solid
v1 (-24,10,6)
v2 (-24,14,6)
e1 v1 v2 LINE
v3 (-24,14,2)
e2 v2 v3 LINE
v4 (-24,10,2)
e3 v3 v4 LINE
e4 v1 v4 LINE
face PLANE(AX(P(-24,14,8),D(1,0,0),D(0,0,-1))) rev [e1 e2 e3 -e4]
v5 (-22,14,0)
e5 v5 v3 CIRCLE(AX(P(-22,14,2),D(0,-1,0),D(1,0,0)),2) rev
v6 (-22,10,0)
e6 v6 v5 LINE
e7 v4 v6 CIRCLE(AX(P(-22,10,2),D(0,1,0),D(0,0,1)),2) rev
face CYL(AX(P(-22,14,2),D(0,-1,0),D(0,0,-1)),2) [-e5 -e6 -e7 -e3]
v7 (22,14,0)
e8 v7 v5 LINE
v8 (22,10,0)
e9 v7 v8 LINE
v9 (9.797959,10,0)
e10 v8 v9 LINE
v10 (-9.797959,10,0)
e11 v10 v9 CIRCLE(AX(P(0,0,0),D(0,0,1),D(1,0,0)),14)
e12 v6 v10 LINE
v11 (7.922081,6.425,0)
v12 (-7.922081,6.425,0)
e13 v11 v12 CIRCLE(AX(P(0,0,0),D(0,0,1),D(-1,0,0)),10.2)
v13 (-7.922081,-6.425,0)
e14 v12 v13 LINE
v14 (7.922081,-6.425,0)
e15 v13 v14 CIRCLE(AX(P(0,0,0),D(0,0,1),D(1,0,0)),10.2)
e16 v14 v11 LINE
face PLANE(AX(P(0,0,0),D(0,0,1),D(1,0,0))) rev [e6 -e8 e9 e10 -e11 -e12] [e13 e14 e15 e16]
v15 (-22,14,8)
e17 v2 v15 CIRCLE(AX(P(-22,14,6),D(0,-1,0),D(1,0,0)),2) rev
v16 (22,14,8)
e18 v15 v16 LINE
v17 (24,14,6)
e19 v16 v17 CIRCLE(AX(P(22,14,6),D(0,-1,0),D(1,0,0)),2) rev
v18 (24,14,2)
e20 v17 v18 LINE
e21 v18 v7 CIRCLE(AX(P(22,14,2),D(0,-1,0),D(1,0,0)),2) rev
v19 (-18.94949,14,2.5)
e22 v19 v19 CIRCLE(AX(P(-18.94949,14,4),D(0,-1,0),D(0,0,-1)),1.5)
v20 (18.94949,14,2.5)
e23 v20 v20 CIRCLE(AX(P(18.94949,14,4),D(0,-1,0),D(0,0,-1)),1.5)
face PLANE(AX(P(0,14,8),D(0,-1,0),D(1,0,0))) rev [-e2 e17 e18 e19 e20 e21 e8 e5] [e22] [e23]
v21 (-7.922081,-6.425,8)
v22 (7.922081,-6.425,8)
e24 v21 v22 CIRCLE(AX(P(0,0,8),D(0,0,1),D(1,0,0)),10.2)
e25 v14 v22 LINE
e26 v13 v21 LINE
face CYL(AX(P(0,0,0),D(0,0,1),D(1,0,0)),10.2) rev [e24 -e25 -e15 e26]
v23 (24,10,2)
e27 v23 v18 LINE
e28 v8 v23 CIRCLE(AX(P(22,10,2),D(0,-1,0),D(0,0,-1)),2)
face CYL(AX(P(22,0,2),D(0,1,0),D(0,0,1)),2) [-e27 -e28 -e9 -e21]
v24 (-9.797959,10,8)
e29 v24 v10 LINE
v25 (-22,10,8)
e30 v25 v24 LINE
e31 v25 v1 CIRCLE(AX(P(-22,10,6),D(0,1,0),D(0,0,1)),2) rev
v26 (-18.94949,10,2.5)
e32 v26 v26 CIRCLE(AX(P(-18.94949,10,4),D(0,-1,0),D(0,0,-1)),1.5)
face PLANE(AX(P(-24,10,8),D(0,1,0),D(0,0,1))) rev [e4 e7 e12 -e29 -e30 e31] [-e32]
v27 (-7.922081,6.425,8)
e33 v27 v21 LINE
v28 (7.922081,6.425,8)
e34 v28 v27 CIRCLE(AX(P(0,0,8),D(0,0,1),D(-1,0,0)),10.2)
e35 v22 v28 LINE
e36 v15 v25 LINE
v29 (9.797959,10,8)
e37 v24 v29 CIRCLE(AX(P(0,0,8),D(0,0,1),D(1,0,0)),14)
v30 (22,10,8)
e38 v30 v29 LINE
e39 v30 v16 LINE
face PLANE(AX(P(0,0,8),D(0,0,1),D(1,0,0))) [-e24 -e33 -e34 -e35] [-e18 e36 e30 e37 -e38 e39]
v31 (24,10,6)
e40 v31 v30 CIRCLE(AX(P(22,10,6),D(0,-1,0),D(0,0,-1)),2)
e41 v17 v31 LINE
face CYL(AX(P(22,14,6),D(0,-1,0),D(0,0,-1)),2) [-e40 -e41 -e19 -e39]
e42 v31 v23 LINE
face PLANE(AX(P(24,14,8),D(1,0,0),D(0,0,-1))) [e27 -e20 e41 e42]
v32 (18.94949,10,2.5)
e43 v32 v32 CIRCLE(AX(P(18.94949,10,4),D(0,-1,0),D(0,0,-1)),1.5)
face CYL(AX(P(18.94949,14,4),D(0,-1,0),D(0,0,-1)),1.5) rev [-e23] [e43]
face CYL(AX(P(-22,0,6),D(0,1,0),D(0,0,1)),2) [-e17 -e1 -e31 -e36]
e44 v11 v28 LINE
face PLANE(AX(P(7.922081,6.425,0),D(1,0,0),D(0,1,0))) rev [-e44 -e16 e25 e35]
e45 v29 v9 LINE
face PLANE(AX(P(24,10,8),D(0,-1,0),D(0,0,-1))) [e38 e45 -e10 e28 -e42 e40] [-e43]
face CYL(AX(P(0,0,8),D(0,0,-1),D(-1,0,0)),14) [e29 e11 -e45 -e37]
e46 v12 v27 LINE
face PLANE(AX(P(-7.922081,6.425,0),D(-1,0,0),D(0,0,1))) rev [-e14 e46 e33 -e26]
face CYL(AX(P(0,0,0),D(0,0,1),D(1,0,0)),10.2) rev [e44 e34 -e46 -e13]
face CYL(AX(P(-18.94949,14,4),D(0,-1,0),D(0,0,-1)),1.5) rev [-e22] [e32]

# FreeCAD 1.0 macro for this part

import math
import FreeCAD as App
import Part
import Sketcher

V = App.Vector


def edges_at(feature, points):
    """Names of the edges that pass closest to the given points."""
    edges = feature.Shape.Edges
    near = lambda p: min(range(len(edges)), key=lambda i: edges[i].distToShape(Part.Vertex(*p))[0])
    return sorted({f"Edge{near(p) + 1}" for p in points})

doc = App.newDocument("Part")
body = doc.addObject("PartDesign::Body", "Body")

sketch1 = body.newObject("Sketcher::SketchObject", "Sketch")
sketch1.AttachmentSupport = (doc.getObject("XY_Plane"), [""])
sketch1.MapMode = "FlatFace"
sketch1.addGeometry([
    Part.LineSegment(V(-24, 14, 0), V(-24, 10, 0)),
    Part.LineSegment(V(-24, 10, 0), V(-9.797959, 10, 0)),
    Part.ArcOfCircle(Part.Circle(V(0, 0, 0), V(0, 0, 1), 14), math.radians(134.415309), math.radians(405.584691)),
    Part.LineSegment(V(9.797959, 10, 0), V(24, 10, 0)),
    Part.LineSegment(V(24, 10, 0), V(24, 14, 0)),
    Part.LineSegment(V(24, 14, 0), V(-24, 14, 0)),
], False)
sketch1.addConstraint([
    Sketcher.Constraint("Coincident", 0, 2, 1, 1),
    Sketcher.Constraint("Coincident", 1, 2, 2, 1),
    Sketcher.Constraint("Coincident", 2, 2, 3, 1),
    Sketcher.Constraint("Coincident", 3, 2, 4, 1),
    Sketcher.Constraint("Coincident", 4, 2, 5, 1),
    Sketcher.Constraint("Coincident", 5, 2, 0, 1),
    Sketcher.Constraint("Vertical", 0),
    Sketcher.Constraint("Horizontal", 1),
    Sketcher.Constraint("Horizontal", 3),
    Sketcher.Constraint("Vertical", 4),
    Sketcher.Constraint("Horizontal", 5),
    Sketcher.Constraint("Coincident", 2, 3, -1, 1),
    Sketcher.Constraint("Symmetric", 0, 2, 3, 2, -2),
    Sketcher.Constraint("Radius", 2, 14.0),
    Sketcher.Constraint("DistanceX", 5, 2, 5, 1, 48.0),
    Sketcher.Constraint("DistanceY", 0, 2, 0, 1, 4.0),
    Sketcher.Constraint("DistanceY", -1, 1, 0, 2, 10.0),
])
pad1 = body.newObject("PartDesign::Pad", "Pad")
pad1.Profile = sketch1
pad1.Length = 8

sketch2 = body.newObject("Sketcher::SketchObject", "Sketch001")
sketch2.AttachmentSupport = (doc.getObject("XY_Plane"), [""])
sketch2.MapMode = "FlatFace"
sketch2.AttachmentOffset = App.Placement(V(0, 0, 8), App.Rotation())
sketch2.addGeometry([
    Part.LineSegment(V(-7.922081, 6.425, 0), V(-7.922081, -6.425, 0)),
    Part.ArcOfCircle(Part.Circle(V(0, 0, 0), V(0, 0, 1), 10.2), math.radians(-140.95711), math.radians(-39.04289)),
    Part.LineSegment(V(7.922081, -6.425, 0), V(7.922081, 6.425, 0)),
    Part.ArcOfCircle(Part.Circle(V(0, 0, 0), V(0, 0, 1), 10.2), math.radians(39.04289), math.radians(140.95711)),
], False)
sketch2.addConstraint([
    Sketcher.Constraint("Coincident", 0, 2, 1, 1),
    Sketcher.Constraint("Coincident", 1, 2, 2, 1),
    Sketcher.Constraint("Coincident", 2, 2, 3, 1),
    Sketcher.Constraint("Coincident", 3, 2, 0, 1),
    Sketcher.Constraint("Vertical", 0),
    Sketcher.Constraint("Vertical", 2),
    Sketcher.Constraint("Coincident", 1, 3, -1, 1),
    Sketcher.Constraint("Coincident", 3, 3, -1, 1),
    Sketcher.Constraint("Equal", 1, 3),
    Sketcher.Constraint("Horizontal", 0, 2, 1, 2),
    Sketcher.Constraint("Radius", 1, 10.2),
    Sketcher.Constraint("DistanceY", 0, 2, 0, 1, 12.85),
])
pocket1 = body.newObject("PartDesign::Pocket", "Pocket")
pocket1.Profile = sketch2
pocket1.Type = "ThroughAll"
doc.recompute()

fillet = body.newObject("PartDesign::Fillet", "Fillet")
fillet.Base = (pocket1, edges_at(pocket1, [
    (-24, 12, 8),
    (24, 12, 8),
    (-24, 12, 0),
    (24, 12, 0),
]))
fillet.Radius = 2

sketch3 = body.newObject("Sketcher::SketchObject", "Sketch002")
sketch3.AttachmentSupport = (doc.getObject("XZ_Plane"), [""])
sketch3.MapMode = "FlatFace"
sketch3.AttachmentOffset = App.Placement(V(0, 0, -10), App.Rotation())
sketch3.addGeometry([
    Part.Circle(V(-18.94949, 4, 0), V(0, 0, 1), 1.5),
    Part.Circle(V(18.94949, 4, 0), V(0, 0, 1), 1.5),
], False)
sketch3.addConstraint([
    Sketcher.Constraint("Equal", 0, 1),
    Sketcher.Constraint("Symmetric", 0, 3, 1, 3, -2),
    Sketcher.Constraint("Diameter", 0, 3.0),
    Sketcher.Constraint("DistanceY", -1, 1, 0, 3, 4.0),
    Sketcher.Constraint("DistanceX", 0, 3, -1, 1, 18.94949),
])
pocket2 = body.newObject("PartDesign::Pocket", "Pocket001")
pocket2.Profile = sketch3
pocket2.Type = "ThroughAll"

doc.recompute()
